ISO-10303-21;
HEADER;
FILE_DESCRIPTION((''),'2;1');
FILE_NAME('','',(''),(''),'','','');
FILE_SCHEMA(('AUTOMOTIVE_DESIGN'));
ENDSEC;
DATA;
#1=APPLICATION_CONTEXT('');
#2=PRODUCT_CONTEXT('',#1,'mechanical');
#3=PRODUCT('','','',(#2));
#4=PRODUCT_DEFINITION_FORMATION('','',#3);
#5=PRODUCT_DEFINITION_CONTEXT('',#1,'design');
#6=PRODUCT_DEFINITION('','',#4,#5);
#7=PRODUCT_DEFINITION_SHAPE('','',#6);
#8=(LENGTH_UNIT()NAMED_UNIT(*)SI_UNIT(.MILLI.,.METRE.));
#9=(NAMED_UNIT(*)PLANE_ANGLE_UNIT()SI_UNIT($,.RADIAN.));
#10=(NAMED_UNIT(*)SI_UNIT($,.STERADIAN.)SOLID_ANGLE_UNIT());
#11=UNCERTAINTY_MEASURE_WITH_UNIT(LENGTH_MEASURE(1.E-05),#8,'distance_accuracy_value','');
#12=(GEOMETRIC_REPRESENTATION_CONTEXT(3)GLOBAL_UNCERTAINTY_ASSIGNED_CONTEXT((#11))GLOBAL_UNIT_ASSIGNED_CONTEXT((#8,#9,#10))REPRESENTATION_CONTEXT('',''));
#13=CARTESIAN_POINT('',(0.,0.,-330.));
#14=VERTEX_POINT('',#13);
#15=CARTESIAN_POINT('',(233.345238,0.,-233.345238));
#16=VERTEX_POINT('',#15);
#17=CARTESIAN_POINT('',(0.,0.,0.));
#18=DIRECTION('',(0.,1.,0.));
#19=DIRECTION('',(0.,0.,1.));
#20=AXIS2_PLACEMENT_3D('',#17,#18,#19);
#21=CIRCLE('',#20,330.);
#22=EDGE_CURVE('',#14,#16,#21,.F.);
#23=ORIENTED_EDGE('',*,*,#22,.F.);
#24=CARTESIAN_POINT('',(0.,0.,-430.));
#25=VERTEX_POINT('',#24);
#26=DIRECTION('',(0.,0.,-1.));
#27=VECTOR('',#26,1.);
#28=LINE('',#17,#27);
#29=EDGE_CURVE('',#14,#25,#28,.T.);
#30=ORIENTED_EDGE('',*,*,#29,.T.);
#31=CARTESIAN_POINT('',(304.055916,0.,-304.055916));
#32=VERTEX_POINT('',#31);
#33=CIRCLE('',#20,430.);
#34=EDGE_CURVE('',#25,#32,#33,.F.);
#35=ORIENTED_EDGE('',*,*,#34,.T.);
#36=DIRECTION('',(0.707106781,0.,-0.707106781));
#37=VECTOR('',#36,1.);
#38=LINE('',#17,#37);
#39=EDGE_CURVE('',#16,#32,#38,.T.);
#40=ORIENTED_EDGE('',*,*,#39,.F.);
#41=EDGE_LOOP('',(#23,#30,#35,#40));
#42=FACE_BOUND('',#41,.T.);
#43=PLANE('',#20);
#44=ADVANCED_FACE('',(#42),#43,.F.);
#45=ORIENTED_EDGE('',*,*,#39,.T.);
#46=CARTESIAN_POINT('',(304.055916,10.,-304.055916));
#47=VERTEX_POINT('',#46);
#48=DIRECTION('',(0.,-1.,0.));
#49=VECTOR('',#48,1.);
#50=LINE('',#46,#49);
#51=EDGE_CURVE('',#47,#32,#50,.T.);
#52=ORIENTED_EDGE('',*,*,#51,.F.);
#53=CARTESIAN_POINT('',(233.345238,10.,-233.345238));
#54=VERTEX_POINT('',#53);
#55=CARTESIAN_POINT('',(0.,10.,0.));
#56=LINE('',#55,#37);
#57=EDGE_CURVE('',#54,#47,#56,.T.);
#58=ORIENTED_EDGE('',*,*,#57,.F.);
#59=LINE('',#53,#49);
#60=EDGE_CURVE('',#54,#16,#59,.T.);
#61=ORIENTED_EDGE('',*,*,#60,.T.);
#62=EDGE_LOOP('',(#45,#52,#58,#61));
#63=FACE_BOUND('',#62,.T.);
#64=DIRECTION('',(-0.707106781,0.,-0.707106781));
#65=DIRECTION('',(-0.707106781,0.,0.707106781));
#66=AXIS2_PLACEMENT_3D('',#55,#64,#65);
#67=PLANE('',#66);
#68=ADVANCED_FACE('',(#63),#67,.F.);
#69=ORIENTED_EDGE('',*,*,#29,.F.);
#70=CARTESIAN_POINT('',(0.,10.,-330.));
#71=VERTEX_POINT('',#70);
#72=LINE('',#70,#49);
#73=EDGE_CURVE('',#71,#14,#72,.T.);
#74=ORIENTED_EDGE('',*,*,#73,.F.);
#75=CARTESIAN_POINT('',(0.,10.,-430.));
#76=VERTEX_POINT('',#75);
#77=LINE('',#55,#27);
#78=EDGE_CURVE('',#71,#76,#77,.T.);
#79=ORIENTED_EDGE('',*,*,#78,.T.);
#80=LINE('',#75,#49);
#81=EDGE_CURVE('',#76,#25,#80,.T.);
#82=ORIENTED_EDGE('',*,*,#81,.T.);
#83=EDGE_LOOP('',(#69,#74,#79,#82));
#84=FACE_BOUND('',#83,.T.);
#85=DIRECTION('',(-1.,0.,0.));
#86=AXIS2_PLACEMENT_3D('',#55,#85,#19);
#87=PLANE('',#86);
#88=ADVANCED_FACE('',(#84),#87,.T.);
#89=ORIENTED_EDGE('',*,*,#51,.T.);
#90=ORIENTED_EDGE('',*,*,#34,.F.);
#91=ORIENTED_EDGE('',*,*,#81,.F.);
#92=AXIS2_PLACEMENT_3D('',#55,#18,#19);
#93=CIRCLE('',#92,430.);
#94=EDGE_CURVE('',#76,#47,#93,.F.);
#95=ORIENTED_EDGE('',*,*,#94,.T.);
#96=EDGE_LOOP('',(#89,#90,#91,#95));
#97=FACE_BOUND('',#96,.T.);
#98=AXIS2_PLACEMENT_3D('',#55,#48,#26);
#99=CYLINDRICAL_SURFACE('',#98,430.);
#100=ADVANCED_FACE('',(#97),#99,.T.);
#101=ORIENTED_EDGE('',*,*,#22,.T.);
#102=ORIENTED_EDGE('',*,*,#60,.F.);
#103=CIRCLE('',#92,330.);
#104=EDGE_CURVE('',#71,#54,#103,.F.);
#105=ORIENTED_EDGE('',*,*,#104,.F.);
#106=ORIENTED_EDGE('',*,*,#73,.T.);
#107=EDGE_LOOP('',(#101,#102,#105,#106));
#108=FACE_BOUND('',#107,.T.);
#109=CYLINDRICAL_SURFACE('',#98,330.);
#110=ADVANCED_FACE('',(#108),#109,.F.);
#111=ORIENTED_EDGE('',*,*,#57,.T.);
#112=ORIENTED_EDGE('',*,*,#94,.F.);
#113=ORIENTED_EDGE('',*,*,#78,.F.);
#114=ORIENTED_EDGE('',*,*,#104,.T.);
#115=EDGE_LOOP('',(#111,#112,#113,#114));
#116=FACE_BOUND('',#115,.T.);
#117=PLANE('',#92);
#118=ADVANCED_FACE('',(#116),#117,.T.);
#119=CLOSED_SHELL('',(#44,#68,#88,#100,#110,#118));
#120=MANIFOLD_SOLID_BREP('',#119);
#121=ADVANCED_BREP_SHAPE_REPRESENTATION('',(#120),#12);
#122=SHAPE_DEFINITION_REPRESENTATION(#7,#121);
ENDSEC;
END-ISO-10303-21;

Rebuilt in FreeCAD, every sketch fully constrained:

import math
import FreeCAD as App
import Part
import Sketcher
Q = App.Units.Quantity

doc = App.newDocument("Part")
body = doc.addObject("PartDesign::Body", "Body")

# Sketch on XZ plane
sketch1 = doc.addObject("Sketcher::SketchObject", "Sketch")
body.addObject(sketch1)
sketch1.AttachmentSupport = (doc.XZ_Plane, [""])
sketch1.MapMode = "FlatFace"
sketch1.addGeometry([
    Part.ArcOfCircle(Part.Circle(App.Vector(0, 0, 0), App.Vector(0, 0, 1), 430), math.radians(-90), math.radians(-45)),
    Part.LineSegment(App.Vector(0, -430, 0), App.Vector(0, -330, 0)),
    Part.ArcOfCircle(Part.Circle(App.Vector(0, 0, 0), App.Vector(0, 0, 1), 330), math.radians(-90), math.radians(-45)),
    Part.LineSegment(App.Vector(233, -233, 0), App.Vector(304, -304, 0)),
], False)
sketch1.addConstraint([
    Sketcher.Constraint("Coincident", 0, 1, 1, 1),
    Sketcher.Constraint("Coincident", 1, 2, 2, 1),
    Sketcher.Constraint("Coincident", 2, 2, 3, 1),
    Sketcher.Constraint("Coincident", 3, 2, 0, 2),
    Sketcher.Constraint("Vertical", 1),
    Sketcher.Constraint("Coincident", 0, 3, -1, 1),
    Sketcher.Constraint("Coincident", 2, 3, -1, 1),
    Sketcher.Constraint("PointOnObject", 1, 2, -2),
    Sketcher.Constraint("Radius", 0, Q("430 mm")),
    Sketcher.Constraint("Radius", 2, Q("330 mm")),
    Sketcher.Constraint("Angle", 3, Q("-45 deg")),
    Sketcher.Constraint("DistanceX", -1, 1, 2, 2, Q("233.345238 mm")),
])
pad1 = doc.addObject("PartDesign::Pad", "Pad")
body.addObject(pad1)
pad1.Profile = sketch1
pad1.Length = 10
pad1.Reversed = True

doc.recompute()
